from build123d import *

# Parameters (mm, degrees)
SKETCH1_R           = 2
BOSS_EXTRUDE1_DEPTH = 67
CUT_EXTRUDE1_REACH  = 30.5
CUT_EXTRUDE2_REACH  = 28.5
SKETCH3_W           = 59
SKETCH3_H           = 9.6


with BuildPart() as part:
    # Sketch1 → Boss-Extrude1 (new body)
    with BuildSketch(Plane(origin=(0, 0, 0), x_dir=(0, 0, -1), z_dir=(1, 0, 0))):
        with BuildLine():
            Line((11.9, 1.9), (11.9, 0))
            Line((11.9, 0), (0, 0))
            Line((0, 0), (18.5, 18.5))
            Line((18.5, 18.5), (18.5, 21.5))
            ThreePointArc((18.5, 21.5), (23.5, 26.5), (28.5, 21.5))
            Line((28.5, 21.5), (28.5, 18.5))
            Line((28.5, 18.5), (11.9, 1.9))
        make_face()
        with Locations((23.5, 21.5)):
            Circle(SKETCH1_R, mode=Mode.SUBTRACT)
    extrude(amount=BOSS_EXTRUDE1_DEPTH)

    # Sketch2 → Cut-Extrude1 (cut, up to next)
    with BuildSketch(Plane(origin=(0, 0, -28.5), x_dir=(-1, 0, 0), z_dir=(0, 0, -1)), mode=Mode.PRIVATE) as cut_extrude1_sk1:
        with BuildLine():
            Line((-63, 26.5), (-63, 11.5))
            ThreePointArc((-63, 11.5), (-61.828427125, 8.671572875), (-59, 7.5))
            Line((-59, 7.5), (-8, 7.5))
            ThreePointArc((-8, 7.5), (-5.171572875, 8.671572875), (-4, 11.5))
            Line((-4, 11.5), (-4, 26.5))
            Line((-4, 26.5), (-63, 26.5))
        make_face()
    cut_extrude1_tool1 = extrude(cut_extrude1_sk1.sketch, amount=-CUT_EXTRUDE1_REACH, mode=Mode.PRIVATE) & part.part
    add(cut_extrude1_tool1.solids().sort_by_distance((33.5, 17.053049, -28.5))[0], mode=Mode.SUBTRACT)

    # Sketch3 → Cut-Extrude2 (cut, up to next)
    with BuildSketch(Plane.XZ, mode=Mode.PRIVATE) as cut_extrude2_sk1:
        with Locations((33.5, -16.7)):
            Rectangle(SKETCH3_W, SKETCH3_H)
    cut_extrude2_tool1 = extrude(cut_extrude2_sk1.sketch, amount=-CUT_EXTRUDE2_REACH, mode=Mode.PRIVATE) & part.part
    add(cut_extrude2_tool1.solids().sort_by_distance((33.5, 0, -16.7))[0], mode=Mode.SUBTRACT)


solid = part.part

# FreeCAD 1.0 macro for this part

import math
import FreeCAD as App
import Part
import Sketcher
from FreeCAD import Vector
Q = App.Units.Quantity


def add_polygon(sketch, points):
    """Adds a closed chain of lines whose ends are joined by coincident constraints."""
    first, n = sketch.GeometryCount, len(points)
    for a, b in zip(points, points[1:] + points[:1]):
        sketch.addGeometry(Part.LineSegment(App.Vector(*a, 0), App.Vector(*b, 0)), False)
    for i in range(n):
        sketch.addConstraint(Sketcher.Constraint("Coincident", first + i, 2, first + (i + 1) % n, 1))

doc = App.newDocument("Part")
body = doc.addObject("PartDesign::Body", "Body")

sketch1 = body.newObject("Sketcher::SketchObject", "Sketch")
sketch1.AttachmentSupport = (doc.getObject("YZ_Plane"), [""])
sketch1.MapMode = "FlatFace"
sketch1.addGeometry(Part.LineSegment(Vector(0, -11.9, 0), Vector(1.9, -11.9, 0)), False)
sketch1.addGeometry(Part.LineSegment(Vector(1.9, -11.9, 0), Vector(18.5, -28.5, 0)), False)
sketch1.addGeometry(Part.LineSegment(Vector(18.5, -28.5, 0), Vector(21.5, -28.5, 0)), False)
sketch1.addGeometry(Part.ArcOfCircle(Part.Circle(Vector(21.5, -23.5, 0), Vector(0, 0, 1), 5), math.radians(-90), math.radians(90)), False)
sketch1.addGeometry(Part.LineSegment(Vector(21.5, -18.5, 0), Vector(18.5, -18.5, 0)), False)
sketch1.addGeometry(Part.LineSegment(Vector(18.5, -18.5, 0), Vector(0, 0, 0)), False)
sketch1.addGeometry(Part.LineSegment(Vector(0, 0, 0), Vector(0, -11.9, 0)), False)
sketch1.addGeometry(Part.Circle(Vector(21.5, -23.5, 0), Vector(0, 0, 1), 2), False)
sketch1.addConstraint(Sketcher.Constraint("Coincident", 0, 2, 1, 1))
sketch1.addConstraint(Sketcher.Constraint("Coincident", 1, 2, 2, 1))
sketch1.addConstraint(Sketcher.Constraint("Tangent", 2, 2, 3, 1))
sketch1.addConstraint(Sketcher.Constraint("Tangent", 3, 2, 4, 1))
sketch1.addConstraint(Sketcher.Constraint("Coincident", 4, 2, 5, 1))
sketch1.addConstraint(Sketcher.Constraint("Coincident", 5, 2, 6, 1))
sketch1.addConstraint(Sketcher.Constraint("Coincident", 6, 2, 0, 1))
sketch1.addConstraint(Sketcher.Constraint("Horizontal", 0))
sketch1.addConstraint(Sketcher.Constraint("Horizontal", 2))
sketch1.addConstraint(Sketcher.Constraint("Horizontal", 4))
sketch1.addConstraint(Sketcher.Constraint("Vertical", 6))
sketch1.addConstraint(Sketcher.Constraint("Coincident", 5, 2, -1, 1))
sketch1.addConstraint(Sketcher.Constraint("Coincident", 7, 3, 3, 3))
sketch1.addConstraint(Sketcher.Constraint("Parallel", 1, 5))
sketch1.addConstraint(Sketcher.Constraint("Vertical", 1, 2, 4, 2))
sketch1.addConstraint(Sketcher.Constraint("Diameter", 7, Q("4 mm")))
sketch1.addConstraint(Sketcher.Constraint("Radius", 3, Q("5 mm")))
sketch1.addConstraint(Sketcher.Constraint("DistanceX", 2, 1, 2, 2, Q("3 mm")))
sketch1.addConstraint(Sketcher.Constraint("Angle", 1, Q("-45 deg")))
sketch1.addConstraint(Sketcher.Constraint("DistanceX", 0, 1, 0, 2, Q("1.9 mm")))
sketch1.addConstraint(Sketcher.Constraint("DistanceX", -1, 1, 3, 3, Q("21.5 mm")))
pad1 = body.newObject("PartDesign::Pad", "Pad")
pad1.Profile = sketch1
pad1.Length = 67

sketch2 = body.newObject("Sketcher::SketchObject", "Sketch001")
sketch2.AttachmentSupport = (doc.getObject("XY_Plane"), [""])
sketch2.MapMode = "FlatFace"
sketch2.AttachmentOffset = App.Placement(Vector(0, 0, -28.5), App.Rotation())
sketch2.addGeometry(Part.LineSegment(Vector(63, 26.5, 0), Vector(63, 11.5, 0)), False)
sketch2.addGeometry(Part.ArcOfCircle(Part.Circle(Vector(59, 11.5, 0), Vector(0, 0, 1), 4), math.radians(-90), math.radians(0)), False)
sketch2.addGeometry(Part.LineSegment(Vector(59, 7.5, 0), Vector(8, 7.5, 0)), False)
sketch2.addGeometry(Part.ArcOfCircle(Part.Circle(Vector(8, 11.5, 0), Vector(0, 0, 1), 4), math.radians(180), math.radians(270)), False)
sketch2.addGeometry(Part.LineSegment(Vector(4, 11.5, 0), Vector(4, 26.5, 0)), False)
sketch2.addGeometry(Part.LineSegment(Vector(4, 26.5, 0), Vector(63, 26.5, 0)), False)
sketch2.addConstraint(Sketcher.Constraint("Tangent", 0, 2, 1, 2))
sketch2.addConstraint(Sketcher.Constraint("Tangent", 1, 1, 2, 1))
sketch2.addConstraint(Sketcher.Constraint("Tangent", 2, 2, 3, 2))
sketch2.addConstraint(Sketcher.Constraint("Tangent", 3, 1, 4, 1))
sketch2.addConstraint(Sketcher.Constraint("Coincident", 4, 2, 5, 1))
sketch2.addConstraint(Sketcher.Constraint("Coincident", 5, 2, 0, 1))
sketch2.addConstraint(Sketcher.Constraint("Vertical", 0))
sketch2.addConstraint(Sketcher.Constraint("Horizontal", 2))
sketch2.addConstraint(Sketcher.Constraint("Vertical", 4))
sketch2.addConstraint(Sketcher.Constraint("Horizontal", 5))
sketch2.addConstraint(Sketcher.Constraint("Equal", 1, 3))
sketch2.addConstraint(Sketcher.Constraint("Radius", 1, Q("4 mm")))
sketch2.addConstraint(Sketcher.Constraint("DistanceX", 2, 2, 2, 1, Q("51 mm")))
sketch2.addConstraint(Sketcher.Constraint("DistanceY", 0, 2, 0, 1, Q("15 mm")))
sketch2.addConstraint(Sketcher.Constraint("DistanceX", -1, 1, 1, 3, Q("59 mm")))
sketch2.addConstraint(Sketcher.Constraint("DistanceY", -1, 1, 1, 3, Q("11.5 mm")))
pocket1 = body.newObject("PartDesign::Pocket", "Pocket")
pocket1.Profile = sketch2
pocket1.Length = 21
pocket1.Reversed = True

sketch3 = body.newObject("Sketcher::SketchObject", "Sketch002")
sketch3.AttachmentSupport = (doc.getObject("XZ_Plane"), [""])
sketch3.MapMode = "FlatFace"
add_polygon(sketch3, [(4, -11.9), (4, -21.5), (63, -21.5), (63, -11.9)])
sketch3.addConstraint(Sketcher.Constraint("Vertical", 0))
sketch3.addConstraint(Sketcher.Constraint("Horizontal", 1))
sketch3.addConstraint(Sketcher.Constraint("Vertical", 2))
sketch3.addConstraint(Sketcher.Constraint("Horizontal", 3))
sketch3.addConstraint(Sketcher.Constraint("DistanceX", 1, 1, 1, 2, Q("59 mm")))
sketch3.addConstraint(Sketcher.Constraint("DistanceY", 0, 2, 0, 1, Q("9.6 mm")))
sketch3.addConstraint(Sketcher.Constraint("DistanceX", -1, 1, 0, 2, Q("4 mm")))
sketch3.addConstraint(Sketcher.Constraint("DistanceY", 0, 2, -1, 1, Q("21.5 mm")))
pocket2 = body.newObject("PartDesign::Pocket", "Pocket001")
pocket2.Profile = sketch3
pocket2.Length = 11.5

doc.recompute()
